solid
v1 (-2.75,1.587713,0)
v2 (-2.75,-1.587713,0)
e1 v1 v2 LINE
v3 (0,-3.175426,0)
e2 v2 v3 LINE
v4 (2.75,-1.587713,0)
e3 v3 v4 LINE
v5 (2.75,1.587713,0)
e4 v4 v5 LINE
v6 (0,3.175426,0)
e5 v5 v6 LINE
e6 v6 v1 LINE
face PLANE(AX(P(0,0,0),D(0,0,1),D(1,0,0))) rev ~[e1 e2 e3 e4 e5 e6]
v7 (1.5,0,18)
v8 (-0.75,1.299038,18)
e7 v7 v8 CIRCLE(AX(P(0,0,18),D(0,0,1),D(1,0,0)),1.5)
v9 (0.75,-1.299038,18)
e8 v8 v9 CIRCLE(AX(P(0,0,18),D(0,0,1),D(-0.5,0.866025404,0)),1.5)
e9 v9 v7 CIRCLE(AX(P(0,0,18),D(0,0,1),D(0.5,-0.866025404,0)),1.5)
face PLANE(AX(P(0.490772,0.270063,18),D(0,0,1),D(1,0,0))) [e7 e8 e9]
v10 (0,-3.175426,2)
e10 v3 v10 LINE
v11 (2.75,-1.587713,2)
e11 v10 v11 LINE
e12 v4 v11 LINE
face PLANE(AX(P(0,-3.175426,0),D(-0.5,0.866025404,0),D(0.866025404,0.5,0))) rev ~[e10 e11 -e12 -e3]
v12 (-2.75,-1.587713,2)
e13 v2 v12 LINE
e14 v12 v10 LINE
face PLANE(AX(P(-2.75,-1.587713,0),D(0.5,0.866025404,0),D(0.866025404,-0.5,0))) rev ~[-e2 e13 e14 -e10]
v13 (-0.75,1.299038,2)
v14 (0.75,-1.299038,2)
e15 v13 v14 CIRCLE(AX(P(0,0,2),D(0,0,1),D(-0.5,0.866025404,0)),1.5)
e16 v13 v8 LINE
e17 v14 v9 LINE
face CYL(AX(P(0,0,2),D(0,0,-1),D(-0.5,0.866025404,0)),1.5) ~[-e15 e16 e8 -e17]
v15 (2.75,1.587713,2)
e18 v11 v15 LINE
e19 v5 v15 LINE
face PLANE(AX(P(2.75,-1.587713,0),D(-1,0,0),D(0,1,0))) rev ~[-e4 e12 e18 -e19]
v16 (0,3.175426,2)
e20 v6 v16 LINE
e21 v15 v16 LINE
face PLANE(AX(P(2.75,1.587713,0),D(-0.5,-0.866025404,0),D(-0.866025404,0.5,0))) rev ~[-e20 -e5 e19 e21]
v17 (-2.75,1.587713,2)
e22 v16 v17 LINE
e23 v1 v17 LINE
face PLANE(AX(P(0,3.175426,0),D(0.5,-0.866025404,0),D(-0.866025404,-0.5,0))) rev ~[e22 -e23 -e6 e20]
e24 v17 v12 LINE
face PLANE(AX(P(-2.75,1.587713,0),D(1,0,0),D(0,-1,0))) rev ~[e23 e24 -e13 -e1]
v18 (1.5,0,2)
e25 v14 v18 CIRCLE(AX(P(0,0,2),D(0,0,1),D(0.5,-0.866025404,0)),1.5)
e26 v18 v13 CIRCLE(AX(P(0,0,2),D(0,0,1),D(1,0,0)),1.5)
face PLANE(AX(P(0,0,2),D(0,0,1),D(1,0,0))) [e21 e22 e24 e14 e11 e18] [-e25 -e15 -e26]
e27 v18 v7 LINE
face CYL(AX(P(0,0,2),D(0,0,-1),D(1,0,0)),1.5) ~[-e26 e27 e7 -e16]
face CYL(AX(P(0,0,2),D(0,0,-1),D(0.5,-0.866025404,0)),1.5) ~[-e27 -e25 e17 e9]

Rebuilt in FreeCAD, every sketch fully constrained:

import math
import FreeCAD as App
import Part
import Sketcher

V = App.Vector
Q = App.Units.Quantity

doc = App.newDocument("Part")
body = doc.addObject("PartDesign::Body", "Body")

# Sketch on XY plane
sketch1 = doc.addObject("Sketcher::SketchObject", "Sketch")
body.addObject(sketch1)
sketch1.AttachmentSupport = (doc.XY_Plane, [""])
sketch1.MapMode = "FlatFace"
sketch1.addGeometry(Part.LineSegment(V(2.8, -1.6, 0), V(2.8, 1.6, 0)), False)
sketch1.addGeometry(Part.LineSegment(V(2.8, 1.6, 0), V(0, 3.2, 0)), False)
sketch1.addGeometry(Part.LineSegment(V(0, 3.2, 0), V(-2.8, 1.6, 0)), False)
sketch1.addGeometry(Part.LineSegment(V(-2.8, 1.6, 0), V(-2.8, -1.6, 0)), False)
sketch1.addGeometry(Part.LineSegment(V(-2.8, -1.6, 0), V(0, -3.2, 0)), False)
sketch1.addGeometry(Part.LineSegment(V(0, -3.2, 0), V(2.8, -1.6, 0)), False)
sketch1.addConstraint(Sketcher.Constraint("Coincident", 0, 2, 1, 1))
sketch1.addConstraint(Sketcher.Constraint("Coincident", 1, 2, 2, 1))
sketch1.addConstraint(Sketcher.Constraint("Coincident", 2, 2, 3, 1))
sketch1.addConstraint(Sketcher.Constraint("Coincident", 3, 2, 4, 1))
sketch1.addConstraint(Sketcher.Constraint("Coincident", 4, 2, 5, 1))
sketch1.addConstraint(Sketcher.Constraint("Coincident", 5, 2, 0, 1))
sketch1.addConstraint(Sketcher.Constraint("Vertical", 0))
sketch1.addConstraint(Sketcher.Constraint("Vertical", 3))
sketch1.addConstraint(Sketcher.Constraint("Symmetric", 0, 2, 3, 2, -1, 1))
sketch1.addConstraint(Sketcher.Constraint("Symmetric", 1, 2, 4, 2, -1, 1))
sketch1.addConstraint(Sketcher.Constraint("PointOnObject", 1, 2, -2))
sketch1.addConstraint(Sketcher.Constraint("Parallel", 2, 5))
sketch1.addConstraint(Sketcher.Constraint("Horizontal", 0, 2, 2, 2))
sketch1.addConstraint(Sketcher.Constraint("Angle", 1, Q("150 deg")))
sketch1.addConstraint(Sketcher.Constraint("DistanceX", 2, 2, 0, 2, Q("5.5 mm")))
sketch1.addConstraint(Sketcher.Constraint("DistanceY", 0, 1, 0, 2, Q("3.175426 mm")))
pad1 = doc.addObject("PartDesign::Pad", "Pad")
body.addObject(pad1)
pad1.Profile = sketch1
pad1.Length = 2

# Sketch on XY plane
sketch2 = doc.addObject("Sketcher::SketchObject", "Sketch001")
body.addObject(sketch2)
sketch2.AttachmentSupport = (doc.XY_Plane, [""])
sketch2.MapMode = "FlatFace"
sketch2.AttachmentOffset = App.Placement(V(0, 0, 2), App.Rotation())
sketch2.addGeometry(Part.ArcOfCircle(Part.Circle(V(0, 0, 0), V(0, 0, 1), 1.5), math.radians(0), math.radians(120)), False)
sketch2.addGeometry(Part.ArcOfCircle(Part.Circle(V(0, 0, 0), V(0, 0, 1), 1.5), math.radians(120), math.radians(300)), False)
sketch2.addGeometry(Part.ArcOfCircle(Part.Circle(V(0, 0, 0), V(0, 0, 1), 1.5), math.radians(-60), math.radians(0)), False)
sketch2.addConstraint(Sketcher.Constraint("Tangent", 0, 2, 1, 1))
sketch2.addConstraint(Sketcher.Constraint("Tangent", 1, 2, 2, 1))
sketch2.addConstraint(Sketcher.Constraint("Tangent", 2, 2, 0, 1))
sketch2.addConstraint(Sketcher.Constraint("Coincident", 0, 3, -1, 1))
sketch2.addConstraint(Sketcher.Constraint("PointOnObject", 2, 2, -1))
sketch2.addConstraint(Sketcher.Constraint("Radius", 0, Q("1.5 mm")))
sketch2.addConstraint(Sketcher.Constraint("DistanceX", 0, 2, 1, 2, Q("1.5 mm")))
sketch2.addConstraint(Sketcher.Constraint("DistanceX", 0, 2, -1, 1, Q("0.75 mm")))
pad2 = doc.addObject("PartDesign::Pad", "Pad001")
body.addObject(pad2)
pad2.Profile = sketch2
pad2.Length = 16

doc.recompute()
